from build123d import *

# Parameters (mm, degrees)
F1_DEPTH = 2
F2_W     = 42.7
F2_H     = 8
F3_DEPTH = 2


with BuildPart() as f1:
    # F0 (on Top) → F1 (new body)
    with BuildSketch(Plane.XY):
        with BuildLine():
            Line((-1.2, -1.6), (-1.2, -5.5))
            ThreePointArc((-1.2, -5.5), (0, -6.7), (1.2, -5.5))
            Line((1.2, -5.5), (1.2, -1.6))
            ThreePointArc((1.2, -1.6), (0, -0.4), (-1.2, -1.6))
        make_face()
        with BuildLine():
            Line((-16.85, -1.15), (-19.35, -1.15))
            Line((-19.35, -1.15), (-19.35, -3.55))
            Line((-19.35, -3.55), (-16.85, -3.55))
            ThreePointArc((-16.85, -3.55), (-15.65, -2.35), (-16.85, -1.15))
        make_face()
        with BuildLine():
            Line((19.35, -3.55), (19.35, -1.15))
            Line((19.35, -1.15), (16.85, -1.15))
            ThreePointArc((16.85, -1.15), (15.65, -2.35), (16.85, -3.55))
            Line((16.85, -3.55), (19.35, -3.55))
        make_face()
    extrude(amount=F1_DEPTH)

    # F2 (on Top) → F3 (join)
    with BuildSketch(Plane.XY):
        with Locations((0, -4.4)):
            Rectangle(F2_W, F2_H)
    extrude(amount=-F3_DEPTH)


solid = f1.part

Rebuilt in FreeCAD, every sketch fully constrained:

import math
import FreeCAD as App
import Part
import Sketcher
from FreeCAD import Vector

doc = App.newDocument("Part")
body = doc.addObject("PartDesign::Body", "Body")
body.AllowCompound = True

# Sketch on XY plane
sketch1 = body.newObject("Sketcher::SketchObject", "Sketch")
sketch1.AttachmentSupport = (doc.getObject("XY_Plane"), [""])
sketch1.MapMode = "FlatFace"
sketch1.addGeometry([
    Part.LineSegment(Vector(-1.2, -1.6, 0), Vector(-1.2, -5.5, 0)),  # 0
    Part.ArcOfCircle(Part.Circle(Vector(0, -5.5, 0), Vector(0, 0, 1), 1.2), math.radians(180), math.radians(360)),  # 1
    Part.LineSegment(Vector(1.2, -5.5, 0), Vector(1.2, -1.6, 0)),  # 2
    Part.ArcOfCircle(Part.Circle(Vector(0, -1.6, 0), Vector(0, 0, 1), 1.2), math.radians(0), math.radians(180)),  # 3
    Part.LineSegment(Vector(-16.9, -1.1, 0), Vector(-19.4, -1.1, 0)),  # 4
    Part.LineSegment(Vector(-19.4, -1.1, 0), Vector(-19.4, -3.5, 0)),  # 5
    Part.LineSegment(Vector(-19.4, -3.5, 0), Vector(-16.9, -3.5, 0)),  # 6
    Part.ArcOfCircle(Part.Circle(Vector(-16.9, -2.4, 0), Vector(0, 0, 1), 1.2), math.radians(-90), math.radians(90)),  # 7
    Part.LineSegment(Vector(19.4, -3.5, 0), Vector(19.4, -1.1, 0)),  # 8
    Part.LineSegment(Vector(19.4, -1.1, 0), Vector(16.9, -1.1, 0)),  # 9
    Part.ArcOfCircle(Part.Circle(Vector(16.9, -2.4, 0), Vector(0, 0, 1), 1.2), math.radians(90), math.radians(270)),  # 10
    Part.LineSegment(Vector(16.9, -3.5, 0), Vector(19.4, -3.5, 0)),  # 11
], False)
sketch1.addConstraint([
    Sketcher.Constraint("Tangent", 0, 2, 1, 1),
    Sketcher.Constraint("Tangent", 1, 2, 2, 1),
    Sketcher.Constraint("Tangent", 2, 2, 3, 1),
    Sketcher.Constraint("Tangent", 3, 2, 0, 1),
    Sketcher.Constraint("Coincident", 4, 2, 5, 1),
    Sketcher.Constraint("Coincident", 5, 2, 6, 1),
    Sketcher.Constraint("Tangent", 6, 2, 7, 1),
    Sketcher.Constraint("Tangent", 7, 2, 4, 1),
    Sketcher.Constraint("Coincident", 8, 2, 9, 1),
    Sketcher.Constraint("Tangent", 9, 2, 10, 1),
    Sketcher.Constraint("Tangent", 10, 2, 11, 1),
    Sketcher.Constraint("Coincident", 11, 2, 8, 1),
    Sketcher.Constraint("Vertical", 0),
    Sketcher.Constraint("Vertical", 2),
    Sketcher.Constraint("Horizontal", 4),
    Sketcher.Constraint("Vertical", 5),
    Sketcher.Constraint("Horizontal", 6),
    Sketcher.Constraint("Vertical", 8),
    Sketcher.Constraint("Horizontal", 9),
    Sketcher.Constraint("Horizontal", 11),
    Sketcher.Constraint("Equal", 3, 7),
    Sketcher.Constraint("Equal", 7, 10),
    Sketcher.Constraint("Symmetric", 7, 3, 10, 3, -2),
    Sketcher.Constraint("PointOnObject", 1, 3, -2),
    Sketcher.Constraint("Equal", 6, 9),
    Sketcher.Constraint("Radius", 1, 1.2),
    Sketcher.Constraint("DistanceX", 4, 2, 4, 1, 2.5),
    Sketcher.Constraint("DistanceY", 0, 2, 0, 1, 3.9),
    Sketcher.Constraint("DistanceY", 1, 3, -1, 1, 5.5),
    Sketcher.Constraint("DistanceX", 7, 3, 10, 3, 33.7),
    Sketcher.Constraint("DistanceY", 7, 3, -1, 1, 2.35),
])
pad1 = body.newObject("PartDesign::Pad", "Pad")
pad1.Profile = sketch1
pad1.Length = 2

# Sketch on XY plane
sketch2 = body.newObject("Sketcher::SketchObject", "Sketch001")
sketch2.AttachmentSupport = (doc.getObject("XY_Plane"), [""])
sketch2.MapMode = "FlatFace"
sketch2.addGeometry([
    Part.LineSegment(Vector(-21, 0, 0), Vector(-21, -8, 0)),
    Part.LineSegment(Vector(-21, -8, 0), Vector(21, -8, 0)),
    Part.LineSegment(Vector(21, -8, 0), Vector(21, 0, 0)),
    Part.LineSegment(Vector(21, 0, 0), Vector(-21, 0, 0)),
], False)
sketch2.addConstraint([
    Sketcher.Constraint("Coincident", 0, 2, 1, 1),
    Sketcher.Constraint("Coincident", 1, 2, 2, 1),
    Sketcher.Constraint("Coincident", 2, 2, 3, 1),
    Sketcher.Constraint("Coincident", 3, 2, 0, 1),
    Sketcher.Constraint("Vertical", 0),
    Sketcher.Constraint("Horizontal", 1),
    Sketcher.Constraint("Vertical", 2),
    Sketcher.Constraint("Horizontal", 3),
    Sketcher.Constraint("DistanceY", 0, 2, 0, 1, 8.0),
    Sketcher.Constraint("DistanceX", 1, 1, 1, 2, 42.7),
    Sketcher.Constraint("DistanceY", 0, 2, -1, 1, 8.4),
    Sketcher.Constraint("DistanceX", 0, 2, -1, 1, 21.35),
])
pad2 = body.newObject("PartDesign::Pad", "Pad001")
pad2.Profile = sketch2
pad2.Length = 2
pad2.Reversed = True

doc.recompute()
